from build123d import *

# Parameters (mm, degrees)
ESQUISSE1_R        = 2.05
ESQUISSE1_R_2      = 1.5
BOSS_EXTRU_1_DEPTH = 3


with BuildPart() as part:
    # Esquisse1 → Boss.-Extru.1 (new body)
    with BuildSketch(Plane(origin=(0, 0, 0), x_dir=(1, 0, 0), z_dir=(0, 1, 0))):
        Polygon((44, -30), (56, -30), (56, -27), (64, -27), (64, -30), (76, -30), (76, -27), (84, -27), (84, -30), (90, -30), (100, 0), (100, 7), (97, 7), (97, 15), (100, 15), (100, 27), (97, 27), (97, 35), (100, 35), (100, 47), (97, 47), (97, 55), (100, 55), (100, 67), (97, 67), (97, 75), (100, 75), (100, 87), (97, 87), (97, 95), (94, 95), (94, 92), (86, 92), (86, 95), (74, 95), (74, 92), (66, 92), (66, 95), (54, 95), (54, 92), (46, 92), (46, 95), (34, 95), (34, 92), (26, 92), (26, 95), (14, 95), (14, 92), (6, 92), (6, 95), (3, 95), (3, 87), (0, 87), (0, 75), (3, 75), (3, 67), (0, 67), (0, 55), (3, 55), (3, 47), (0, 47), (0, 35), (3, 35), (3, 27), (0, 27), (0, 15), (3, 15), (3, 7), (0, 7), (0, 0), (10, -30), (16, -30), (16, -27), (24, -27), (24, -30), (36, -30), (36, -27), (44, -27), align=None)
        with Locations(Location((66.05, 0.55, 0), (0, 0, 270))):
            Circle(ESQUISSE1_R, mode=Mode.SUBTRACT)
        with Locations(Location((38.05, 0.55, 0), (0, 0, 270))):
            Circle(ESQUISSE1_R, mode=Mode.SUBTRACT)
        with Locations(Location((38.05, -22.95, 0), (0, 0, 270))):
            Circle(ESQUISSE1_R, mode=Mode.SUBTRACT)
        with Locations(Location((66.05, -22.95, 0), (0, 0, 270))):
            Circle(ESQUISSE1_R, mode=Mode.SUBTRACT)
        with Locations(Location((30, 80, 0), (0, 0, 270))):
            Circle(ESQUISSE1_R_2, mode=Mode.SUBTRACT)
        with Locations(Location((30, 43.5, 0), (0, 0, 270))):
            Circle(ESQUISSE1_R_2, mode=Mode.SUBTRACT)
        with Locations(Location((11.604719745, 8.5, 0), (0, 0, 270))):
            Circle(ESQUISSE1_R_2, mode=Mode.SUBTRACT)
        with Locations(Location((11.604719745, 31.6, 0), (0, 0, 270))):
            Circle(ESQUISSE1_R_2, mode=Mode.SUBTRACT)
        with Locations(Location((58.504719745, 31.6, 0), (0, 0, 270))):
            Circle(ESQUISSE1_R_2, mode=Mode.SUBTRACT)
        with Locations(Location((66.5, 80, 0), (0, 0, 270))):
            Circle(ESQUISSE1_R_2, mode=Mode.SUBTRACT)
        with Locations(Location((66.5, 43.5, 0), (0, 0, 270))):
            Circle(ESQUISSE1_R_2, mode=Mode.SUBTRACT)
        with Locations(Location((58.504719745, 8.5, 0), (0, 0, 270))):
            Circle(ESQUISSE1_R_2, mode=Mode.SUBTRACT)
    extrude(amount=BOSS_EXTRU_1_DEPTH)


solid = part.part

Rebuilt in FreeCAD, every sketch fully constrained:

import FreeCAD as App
import Part
import Sketcher
from FreeCAD import Vector

doc = App.newDocument("Part")
params = doc.addObject("Spreadsheet::Sheet", "Params")
for row, (alias, value) in enumerate([
    ("sketch1_diameter", "3 mm"),
    ("sketch1_diameter2", "4.1 mm"),
    ("sketch1_width", "12 mm"),
    ("sketch1_width2", "8 mm"),
    ("sketch1_width3", "6 mm"),
    ("pad1_length", "3 mm"),
], start=1):
    params.set(f"A{row}", alias)
    params.set(f"B{row}", "=" + value)
    params.setAlias(f"B{row}", alias)

body = doc.addObject("PartDesign::Body", "Body")

sketch1 = body.newObject("Sketcher::SketchObject", "Sketch")
sketch1.AttachmentSupport = (doc.getObject("XZ_Plane"), [""])
sketch1.MapMode = "FlatFace"
sketch1.addGeometry([
    Part.LineSegment(Vector(44, 30, 0), Vector(56, 30, 0)),
    Part.LineSegment(Vector(56, 30, 0), Vector(56, 27, 0)),
    Part.LineSegment(Vector(56, 27, 0), Vector(64, 27, 0)),
    Part.LineSegment(Vector(64, 27, 0), Vector(64, 30, 0)),
    Part.LineSegment(Vector(64, 30, 0), Vector(76, 30, 0)),
    Part.LineSegment(Vector(76, 30, 0), Vector(76, 27, 0)),
    Part.LineSegment(Vector(76, 27, 0), Vector(84, 27, 0)),
    Part.LineSegment(Vector(84, 27, 0), Vector(84, 30, 0)),
    Part.LineSegment(Vector(84, 30, 0), Vector(90, 30, 0)),
    Part.LineSegment(Vector(90, 30, 0), Vector(100, 0, 0)),
    Part.LineSegment(Vector(100, 0, 0), Vector(100, -7, 0)),
    Part.LineSegment(Vector(100, -7, 0), Vector(97, -7, 0)),
    Part.LineSegment(Vector(97, -7, 0), Vector(97, -15, 0)),
    Part.LineSegment(Vector(97, -15, 0), Vector(100, -15, 0)),
    Part.LineSegment(Vector(100, -15, 0), Vector(100, -27, 0)),
    Part.LineSegment(Vector(100, -27, 0), Vector(97, -27, 0)),
    Part.LineSegment(Vector(97, -27, 0), Vector(97, -35, 0)),
    Part.LineSegment(Vector(97, -35, 0), Vector(100, -35, 0)),
    Part.LineSegment(Vector(100, -35, 0), Vector(100, -47, 0)),
    Part.LineSegment(Vector(100, -47, 0), Vector(97, -47, 0)),
    Part.LineSegment(Vector(97, -47, 0), Vector(97, -55, 0)),
    Part.LineSegment(Vector(97, -55, 0), Vector(100, -55, 0)),
    Part.LineSegment(Vector(100, -55, 0), Vector(100, -67, 0)),
    Part.LineSegment(Vector(100, -67, 0), Vector(97, -67, 0)),
    Part.LineSegment(Vector(97, -67, 0), Vector(97, -75, 0)),
    Part.LineSegment(Vector(97, -75, 0), Vector(100, -75, 0)),
    Part.LineSegment(Vector(100, -75, 0), Vector(100, -87, 0)),
    Part.LineSegment(Vector(100, -87, 0), Vector(97, -87, 0)),
    Part.LineSegment(Vector(97, -87, 0), Vector(97, -95, 0)),
    Part.LineSegment(Vector(97, -95, 0), Vector(94, -95, 0)),
    Part.LineSegment(Vector(94, -95, 0), Vector(94, -92, 0)),
    Part.LineSegment(Vector(94, -92, 0), Vector(86, -92, 0)),
    Part.LineSegment(Vector(86, -92, 0), Vector(86, -95, 0)),
    Part.LineSegment(Vector(86, -95, 0), Vector(74, -95, 0)),
    Part.LineSegment(Vector(74, -95, 0), Vector(74, -92, 0)),
    Part.LineSegment(Vector(74, -92, 0), Vector(66, -92, 0)),
    Part.LineSegment(Vector(66, -92, 0), Vector(66, -95, 0)),
    Part.LineSegment(Vector(66, -95, 0), Vector(54, -95, 0)),
    Part.LineSegment(Vector(54, -95, 0), Vector(54, -92, 0)),
    Part.LineSegment(Vector(54, -92, 0), Vector(46, -92, 0)),
    Part.LineSegment(Vector(46, -92, 0), Vector(46, -95, 0)),
    Part.LineSegment(Vector(46, -95, 0), Vector(34, -95, 0)),
    Part.LineSegment(Vector(34, -95, 0), Vector(34, -92, 0)),
    Part.LineSegment(Vector(34, -92, 0), Vector(26, -92, 0)),
    Part.LineSegment(Vector(26, -92, 0), Vector(26, -95, 0)),
    Part.LineSegment(Vector(26, -95, 0), Vector(14, -95, 0)),
    Part.LineSegment(Vector(14, -95, 0), Vector(14, -92, 0)),
    Part.LineSegment(Vector(14, -92, 0), Vector(6, -92, 0)),
    Part.LineSegment(Vector(6, -92, 0), Vector(6, -95, 0)),
    Part.LineSegment(Vector(6, -95, 0), Vector(3, -95, 0)),
    Part.LineSegment(Vector(3, -95, 0), Vector(3, -87, 0)),
    Part.LineSegment(Vector(3, -87, 0), Vector(0, -87, 0)),
    Part.LineSegment(Vector(0, -87, 0), Vector(0, -75, 0)),
    Part.LineSegment(Vector(0, -75, 0), Vector(3, -75, 0)),
    Part.LineSegment(Vector(3, -75, 0), Vector(3, -67, 0)),
    Part.LineSegment(Vector(3, -67, 0), Vector(0, -67, 0)),
    Part.LineSegment(Vector(0, -67, 0), Vector(0, -55, 0)),
    Part.LineSegment(Vector(0, -55, 0), Vector(3, -55, 0)),
    Part.LineSegment(Vector(3, -55, 0), Vector(3, -47, 0)),
    Part.LineSegment(Vector(3, -47, 0), Vector(0, -47, 0)),
    Part.LineSegment(Vector(0, -47, 0), Vector(0, -35, 0)),
    Part.LineSegment(Vector(0, -35, 0), Vector(3, -35, 0)),
    Part.LineSegment(Vector(3, -35, 0), Vector(3, -27, 0)),
    Part.LineSegment(Vector(3, -27, 0), Vector(0, -27, 0)),
    Part.LineSegment(Vector(0, -27, 0), Vector(0, -15, 0)),
    Part.LineSegment(Vector(0, -15, 0), Vector(3, -15, 0)),
    Part.LineSegment(Vector(3, -15, 0), Vector(3, -7, 0)),
    Part.LineSegment(Vector(3, -7, 0), Vector(0, -7, 0)),
    Part.LineSegment(Vector(0, -7, 0), Vector(0, 0, 0)),
    Part.LineSegment(Vector(0, 0, 0), Vector(10, 30, 0)),
    Part.LineSegment(Vector(10, 30, 0), Vector(16, 30, 0)),
    Part.LineSegment(Vector(16, 30, 0), Vector(16, 27, 0)),
    Part.LineSegment(Vector(16, 27, 0), Vector(24, 27, 0)),
    Part.LineSegment(Vector(24, 27, 0), Vector(24, 30, 0)),
    Part.LineSegment(Vector(24, 30, 0), Vector(36, 30, 0)),
    Part.LineSegment(Vector(36, 30, 0), Vector(36, 27, 0)),
    Part.LineSegment(Vector(36, 27, 0), Vector(44, 27, 0)),
    Part.LineSegment(Vector(44, 27, 0), Vector(44, 30, 0)),
    Part.Circle(Vector(38, 22.9, 0), Vector(0, 0, 1), 2),
    Part.Circle(Vector(38, -0.6, 0), Vector(0, 0, 1), 2),
    Part.Circle(Vector(11.6, -8.5, 0), Vector(0, 0, 1), 1.5),
    Part.Circle(Vector(66, 22.9, 0), Vector(0, 0, 1), 2),
    Part.Circle(Vector(66, -0.6, 0), Vector(0, 0, 1), 2),
    Part.Circle(Vector(58.5, -8.5, 0), Vector(0, 0, 1), 1.5),
    Part.Circle(Vector(11.6, -31.6, 0), Vector(0, 0, 1), 1.5),
    Part.Circle(Vector(30, -43.5, 0), Vector(0, 0, 1), 1.5),
    Part.Circle(Vector(30, -80, 0), Vector(0, 0, 1), 1.5),
    Part.Circle(Vector(58.5, -31.6, 0), Vector(0, 0, 1), 1.5),
    Part.Circle(Vector(66.5, -43.5, 0), Vector(0, 0, 1), 1.5),
    Part.Circle(Vector(66.5, -80, 0), Vector(0, 0, 1), 1.5),
], False)
sketch1.addConstraint([
    Sketcher.Constraint("Coincident", 0, 2, 1, 1),
    Sketcher.Constraint("Coincident", 1, 2, 2, 1),
    Sketcher.Constraint("Coincident", 2, 2, 3, 1),
    Sketcher.Constraint("Coincident", 3, 2, 4, 1),
    Sketcher.Constraint("Coincident", 4, 2, 5, 1),
    Sketcher.Constraint("Coincident", 5, 2, 6, 1),
    Sketcher.Constraint("Coincident", 6, 2, 7, 1),
    Sketcher.Constraint("Coincident", 7, 2, 8, 1),
    Sketcher.Constraint("Coincident", 8, 2, 9, 1),
    Sketcher.Constraint("Coincident", 9, 2, 10, 1),
    Sketcher.Constraint("Coincident", 10, 2, 11, 1),
    Sketcher.Constraint("Coincident", 11, 2, 12, 1),
    Sketcher.Constraint("Coincident", 12, 2, 13, 1),
    Sketcher.Constraint("Coincident", 13, 2, 14, 1),
    Sketcher.Constraint("Coincident", 14, 2, 15, 1),
    Sketcher.Constraint("Coincident", 15, 2, 16, 1),
    Sketcher.Constraint("Coincident", 16, 2, 17, 1),
    Sketcher.Constraint("Coincident", 17, 2, 18, 1),
    Sketcher.Constraint("Coincident", 18, 2, 19, 1),
    Sketcher.Constraint("Coincident", 19, 2, 20, 1),
    Sketcher.Constraint("Coincident", 20, 2, 21, 1),
    Sketcher.Constraint("Coincident", 21, 2, 22, 1),
    Sketcher.Constraint("Coincident", 22, 2, 23, 1),
    Sketcher.Constraint("Coincident", 23, 2, 24, 1),
    Sketcher.Constraint("Coincident", 24, 2, 25, 1),
    Sketcher.Constraint("Coincident", 25, 2, 26, 1),
    Sketcher.Constraint("Coincident", 26, 2, 27, 1),
    Sketcher.Constraint("Coincident", 27, 2, 28, 1),
    Sketcher.Constraint("Coincident", 28, 2, 29, 1),
    Sketcher.Constraint("Coincident", 29, 2, 30, 1),
    Sketcher.Constraint("Coincident", 30, 2, 31, 1),
    Sketcher.Constraint("Coincident", 31, 2, 32, 1),
    Sketcher.Constraint("Coincident", 32, 2, 33, 1),
    Sketcher.Constraint("Coincident", 33, 2, 34, 1),
    Sketcher.Constraint("Coincident", 34, 2, 35, 1),
    Sketcher.Constraint("Coincident", 35, 2, 36, 1),
    Sketcher.Constraint("Coincident", 36, 2, 37, 1),
    Sketcher.Constraint("Coincident", 37, 2, 38, 1),
    Sketcher.Constraint("Coincident", 38, 2, 39, 1),
    Sketcher.Constraint("Coincident", 39, 2, 40, 1),
    Sketcher.Constraint("Coincident", 40, 2, 41, 1),
    Sketcher.Constraint("Coincident", 41, 2, 42, 1),
    Sketcher.Constraint("Coincident", 42, 2, 43, 1),
    Sketcher.Constraint("Coincident", 43, 2, 44, 1),
    Sketcher.Constraint("Coincident", 44, 2, 45, 1),
    Sketcher.Constraint("Coincident", 45, 2, 46, 1),
    Sketcher.Constraint("Coincident", 46, 2, 47, 1),
    Sketcher.Constraint("Coincident", 47, 2, 48, 1),
    Sketcher.Constraint("Coincident", 48, 2, 49, 1),
    Sketcher.Constraint("Coincident", 49, 2, 50, 1),
    Sketcher.Constraint("Coincident", 50, 2, 51, 1),
    Sketcher.Constraint("Coincident", 51, 2, 52, 1),
    Sketcher.Constraint("Coincident", 52, 2, 53, 1),
    Sketcher.Constraint("Coincident", 53, 2, 54, 1),
    Sketcher.Constraint("Coincident", 54, 2, 55, 1),
    Sketcher.Constraint("Coincident", 55, 2, 56, 1),
    Sketcher.Constraint("Coincident", 56, 2, 57, 1),
    Sketcher.Constraint("Coincident", 57, 2, 58, 1),
    Sketcher.Constraint("Coincident", 58, 2, 59, 1),
    Sketcher.Constraint("Coincident", 59, 2, 60, 1),
    Sketcher.Constraint("Coincident", 60, 2, 61, 1),
    Sketcher.Constraint("Coincident", 61, 2, 62, 1),
    Sketcher.Constraint("Coincident", 62, 2, 63, 1),
    Sketcher.Constraint("Coincident", 63, 2, 64, 1),
    Sketcher.Constraint("Coincident", 64, 2, 65, 1),
    Sketcher.Constraint("Coincident", 65, 2, 66, 1),
    Sketcher.Constraint("Coincident", 66, 2, 67, 1),
    Sketcher.Constraint("Coincident", 67, 2, 68, 1),
    Sketcher.Constraint("Coincident", 68, 2, 69, 1),
    Sketcher.Constraint("Coincident", 69, 2, 70, 1),
    Sketcher.Constraint("Coincident", 70, 2, 71, 1),
    Sketcher.Constraint("Coincident", 71, 2, 72, 1),
    Sketcher.Constraint("Coincident", 72, 2, 73, 1),
    Sketcher.Constraint("Coincident", 73, 2, 74, 1),
    Sketcher.Constraint("Coincident", 74, 2, 75, 1),
    Sketcher.Constraint("Coincident", 75, 2, 76, 1),
    Sketcher.Constraint("Coincident", 76, 2, 77, 1),
    Sketcher.Constraint("Coincident", 77, 2, 0, 1),
    Sketcher.Constraint("Horizontal", 0),
    Sketcher.Constraint("Vertical", 1),
    Sketcher.Constraint("Horizontal", 2),
    Sketcher.Constraint("Vertical", 3),
    Sketcher.Constraint("Horizontal", 4),
    Sketcher.Constraint("Vertical", 5),
    Sketcher.Constraint("Horizontal", 6),
    Sketcher.Constraint("Vertical", 7),
    Sketcher.Constraint("Horizontal", 8),
    Sketcher.Constraint("Vertical", 10),
    Sketcher.Constraint("Horizontal", 11),
    Sketcher.Constraint("Vertical", 12),
    Sketcher.Constraint("Horizontal", 13),
    Sketcher.Constraint("Vertical", 14),
    Sketcher.Constraint("Horizontal", 15),
    Sketcher.Constraint("Vertical", 16),
    Sketcher.Constraint("Horizontal", 17),
    Sketcher.Constraint("Vertical", 18),
    Sketcher.Constraint("Horizontal", 19),
    Sketcher.Constraint("Vertical", 20),
    Sketcher.Constraint("Horizontal", 21),
    Sketcher.Constraint("Vertical", 22),
    Sketcher.Constraint("Horizontal", 23),
    Sketcher.Constraint("Vertical", 24),
    Sketcher.Constraint("Horizontal", 25),
    Sketcher.Constraint("Vertical", 26),
    Sketcher.Constraint("Horizontal", 27),
    Sketcher.Constraint("Vertical", 28),
    Sketcher.Constraint("Horizontal", 29),
    Sketcher.Constraint("Vertical", 30),
    Sketcher.Constraint("Horizontal", 31),
    Sketcher.Constraint("Vertical", 32),
    Sketcher.Constraint("Horizontal", 33),
    Sketcher.Constraint("Vertical", 34),
    Sketcher.Constraint("Horizontal", 35),
    Sketcher.Constraint("Vertical", 36),
    Sketcher.Constraint("Horizontal", 37),
    Sketcher.Constraint("Vertical", 38),
    Sketcher.Constraint("Horizontal", 39),
    Sketcher.Constraint("Vertical", 40),
    Sketcher.Constraint("Horizontal", 41),
    Sketcher.Constraint("Vertical", 42),
    Sketcher.Constraint("Horizontal", 43),
    Sketcher.Constraint("Vertical", 44),
    Sketcher.Constraint("Horizontal", 45),
    Sketcher.Constraint("Vertical", 46),
    Sketcher.Constraint("Horizontal", 47),
    Sketcher.Constraint("Vertical", 48),
    Sketcher.Constraint("Horizontal", 49),
    Sketcher.Constraint("Vertical", 50),
    Sketcher.Constraint("Horizontal", 51),
    Sketcher.Constraint("Vertical", 52),
    Sketcher.Constraint("Horizontal", 53),
    Sketcher.Constraint("Vertical", 54),
    Sketcher.Constraint("Horizontal", 55),
    Sketcher.Constraint("Vertical", 56),
    Sketcher.Constraint("Horizontal", 57),
    Sketcher.Constraint("Vertical", 58),
    Sketcher.Constraint("Horizontal", 59),
    Sketcher.Constraint("Vertical", 60),
    Sketcher.Constraint("Horizontal", 61),
    Sketcher.Constraint("Vertical", 62),
    Sketcher.Constraint("Horizontal", 63),
    Sketcher.Constraint("Vertical", 64),
    Sketcher.Constraint("Horizontal", 65),
    Sketcher.Constraint("Vertical", 66),
    Sketcher.Constraint("Horizontal", 67),
    Sketcher.Constraint("Vertical", 68),
    Sketcher.Constraint("Horizontal", 70),
    Sketcher.Constraint("Vertical", 71),
    Sketcher.Constraint("Horizontal", 72),
    Sketcher.Constraint("Vertical", 73),
    Sketcher.Constraint("Horizontal", 74),
    Sketcher.Constraint("Vertical", 75),
    Sketcher.Constraint("Horizontal", 76),
    Sketcher.Constraint("Vertical", 77),
    Sketcher.Constraint("Coincident", 68, 2, -1, 1),
    Sketcher.Constraint("Equal", 78, 79),
    Sketcher.Constraint("Equal", 79, 81),
    Sketcher.Constraint("Equal", 81, 82),
    Sketcher.Constraint("Equal", 80, 83),
    Sketcher.Constraint("Equal", 83, 84),
    Sketcher.Constraint("Equal", 84, 85),
    Sketcher.Constraint("Equal", 85, 86),
    Sketcher.Constraint("Equal", 86, 87),
    Sketcher.Constraint("Equal", 87, 88),
    Sketcher.Constraint("Equal", 88, 89),
    Sketcher.Constraint("PointOnObject", 9, 2, -1),
    Sketcher.Constraint("PointOnObject", 51, 2, -2),
    Sketcher.Constraint("PointOnObject", 55, 2, -2),
    Sketcher.Constraint("PointOnObject", 59, 2, -2),
    Sketcher.Constraint("PointOnObject", 63, 2, -2),
    Sketcher.Constraint("Horizontal", 78, 3, 81, 3),
    Sketcher.Constraint("Horizontal", 79, 3, 82, 3),
    Sketcher.Constraint("Horizontal", 80, 3, 83, 3),
    Sketcher.Constraint("Horizontal", 84, 3, 87, 3),
    Sketcher.Constraint("Horizontal", 85, 3, 88, 3),
    Sketcher.Constraint("Horizontal", 86, 3, 89, 3),
    Sketcher.Constraint("Horizontal", 0, 2, 3, 2),
    Sketcher.Constraint("Horizontal", 2, 2, 5, 2),
    Sketcher.Constraint("Horizontal", 4, 2, 7, 2),
    Sketcher.Constraint("Horizontal", 29, 2, 32, 2),
    Sketcher.Constraint("Horizontal", 31, 2, 34, 2),
    Sketcher.Constraint("Horizontal", 33, 2, 36, 2),
    Sketcher.Constraint("Horizontal", 35, 2, 38, 2),
    Sketcher.Constraint("Horizontal", 37, 2, 40, 2),
    Sketcher.Constraint("Horizontal", 39, 2, 42, 2),
    Sketcher.Constraint("Horizontal", 41, 2, 44, 2),
    Sketcher.Constraint("Horizontal", 43, 2, 46, 2),
    Sketcher.Constraint("Horizontal", 45, 2, 48, 2),
    Sketcher.Constraint("Horizontal", 27, 2, 50, 2),
    Sketcher.Constraint("Horizontal", 25, 2, 52, 2),
    Sketcher.Constraint("Horizontal", 23, 2, 54, 2),
    Sketcher.Constraint("Horizontal", 21, 2, 56, 2),
    Sketcher.Constraint("Horizontal", 19, 2, 58, 2),
    Sketcher.Constraint("Horizontal", 17, 2, 60, 2),
    Sketcher.Constraint("Horizontal", 15, 2, 62, 2),
    Sketcher.Constraint("Horizontal", 13, 2, 64, 2),
    Sketcher.Constraint("Horizontal", 11, 2, 66, 2),
    Sketcher.Constraint("Horizontal", 8, 2, 69, 2),
    Sketcher.Constraint("Horizontal", 6, 2, 71, 2),
    Sketcher.Constraint("Horizontal", 70, 2, 73, 2),
    Sketcher.Constraint("Horizontal", 72, 2, 75, 2),
    Sketcher.Constraint("Vertical", 78, 3, 79, 3),
    Sketcher.Constraint("Vertical", 81, 3, 82, 3),
    Sketcher.Constraint("Vertical", 80, 3, 84, 3),
    Sketcher.Constraint("Vertical", 85, 3, 86, 3),
    Sketcher.Constraint("Vertical", 83, 3, 87, 3),
    Sketcher.Constraint("Vertical", 88, 3, 89, 3),
    Sketcher.Constraint("Vertical", 10, 2, 13, 2),
    Sketcher.Constraint("Vertical", 12, 2, 15, 2),
    Sketcher.Constraint("Vertical", 14, 2, 17, 2),
    Sketcher.Constraint("Vertical", 16, 2, 19, 2),
    Sketcher.Constraint("Vertical", 18, 2, 21, 2),
    Sketcher.Constraint("Vertical", 20, 2, 23, 2),
    Sketcher.Constraint("Vertical", 22, 2, 25, 2),
    Sketcher.Constraint("Vertical", 24, 2, 27, 2),
    Sketcher.Constraint("Vertical", 50, 2, 53, 2),
    Sketcher.Constraint("Vertical", 54, 2, 57, 2),
    Sketcher.Constraint("Vertical", 58, 2, 61, 2),
    Sketcher.Constraint("Vertical", 62, 2, 65, 2),
    Sketcher.Constraint("Equal", 0, 4),
    Sketcher.Constraint("Equal", 2, 6),
    Sketcher.Constraint("Equal", 27, 29),
    Sketcher.Constraint("Equal", 6, 31),
    Sketcher.Constraint("Equal", 4, 33),
    Sketcher.Constraint("Equal", 31, 35),
    Sketcher.Constraint("Equal", 33, 37),
    Sketcher.Constraint("Equal", 35, 39),
    Sketcher.Constraint("Equal", 37, 41),
    Sketcher.Constraint("Equal", 39, 43),
    Sketcher.Constraint("Equal", 41, 45),
    Sketcher.Constraint("Equal", 43, 47),
    Sketcher.Constraint("Equal", 29, 49),
    Sketcher.Constraint("Equal", 49, 51),
    Sketcher.Constraint("Equal", 8, 70),
    Sketcher.Constraint("Equal", 47, 72),
    Sketcher.Constraint("Equal", 45, 74),
    Sketcher.Constraint("Equal", 72, 76),
    Sketcher.Constraint("Equal", 67, 1),
    Sketcher.Constraint("Equal", 76, 12),
    Sketcher.Constraint("Equal", 74, 14),
    Sketcher.Constraint("Equal", 12, 16),
    Sketcher.Constraint("Equal", 14, 18),
    Sketcher.Constraint("Equal", 16, 20),
    Sketcher.Constraint("Equal", 18, 22),
    Sketcher.Constraint("Equal", 20, 24),
    Sketcher.Constraint("Equal", 22, 26),
    Sketcher.Constraint("Equal", 24, 28),
    Sketcher.Constraint("Equal", 7, 30),
    Sketcher.Constraint("Equal", 9, 69),
    Sketcher.Constraint("Diameter", 80, 3.0),
    Sketcher.Constraint("Diameter", 78, 4.1),
    Sketcher.Constraint("DistanceX", 0, 1, 0, 2, 12.0),
    Sketcher.Constraint("DistanceX", 2, 1, 2, 2, 8.0),
    Sketcher.Constraint("DistanceX", 8, 1, 8, 2, 6.0),
    Sketcher.Constraint("DistanceX", 11, 2, 11, 1, 3.0),
    Sketcher.Constraint("DistanceY", 10, 2, 10, 1, 7.0),
    Sketcher.Constraint("DistanceX", -1, 1, 85, 3, 30.0),
    Sketcher.Constraint("DistanceY", 86, 3, -1, 1, 80.0),
    Sketcher.Constraint("DistanceY", -1, 1, 0, 2, 30.0),
    Sketcher.Constraint("DistanceY", 80, 3, -1, 1, 8.5),
    Sketcher.Constraint("DistanceY", 84, 3, -1, 1, 31.6),
    Sketcher.Constraint("DistanceY", 85, 3, -1, 1, 43.5),
    Sketcher.Constraint("DistanceX", -1, 1, 88, 3, 66.5),
    Sketcher.Constraint("DistanceX", -1, 1, 78, 3, 38.05),
    Sketcher.Constraint("DistanceY", -1, 1, 78, 3, 22.95),
    Sketcher.Constraint("DistanceY", 79, 3, -1, 1, 0.55),
    Sketcher.Constraint("DistanceX", -1, 1, 81, 3, 66.05),
    Sketcher.Constraint("DistanceX", -1, 1, 80, 3, 11.60472),
    Sketcher.Constraint("DistanceX", -1, 1, 83, 3, 58.50472),
])
sketch1.setExpression("Constraints[249]", "Params.sketch1_diameter")
sketch1.setExpression("Constraints[250]", "Params.sketch1_diameter2")
sketch1.setExpression("Constraints[251]", "Params.sketch1_width")
sketch1.setExpression("Constraints[252]", "Params.sketch1_width2")
sketch1.setExpression("Constraints[253]", "Params.sketch1_width3")
pad1 = body.newObject("PartDesign::Pad", "Pad")
pad1.Profile = sketch1
pad1.setExpression("Length", "Params.pad1_length")
pad1.Reversed = True

doc.recompute()
